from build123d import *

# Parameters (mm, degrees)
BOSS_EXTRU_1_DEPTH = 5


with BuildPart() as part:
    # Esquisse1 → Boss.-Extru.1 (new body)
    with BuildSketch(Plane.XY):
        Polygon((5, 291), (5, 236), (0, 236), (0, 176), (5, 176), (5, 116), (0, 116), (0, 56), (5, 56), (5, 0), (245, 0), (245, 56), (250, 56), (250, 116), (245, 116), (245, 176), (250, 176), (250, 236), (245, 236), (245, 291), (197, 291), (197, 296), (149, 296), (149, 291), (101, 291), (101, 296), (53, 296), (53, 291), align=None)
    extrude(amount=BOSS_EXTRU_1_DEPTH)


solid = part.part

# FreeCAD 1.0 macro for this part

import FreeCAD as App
import Part
import Sketcher
Q = App.Units.Quantity


def add_polygon(sketch, points):
    """Adds a closed chain of lines whose ends are joined by coincident constraints."""
    first, n = sketch.GeometryCount, len(points)
    for a, b in zip(points, points[1:] + points[:1]):
        sketch.addGeometry(Part.LineSegment(App.Vector(*a, 0), App.Vector(*b, 0)), False)
    for i in range(n):
        sketch.addConstraint(Sketcher.Constraint("Coincident", first + i, 2, first + (i + 1) % n, 1))

doc = App.newDocument("Part")
body = doc.addObject("PartDesign::Body", "Body")

# Sketch on XY plane
sketch1 = body.newObject("Sketcher::SketchObject", "Sketch")
sketch1.AttachmentSupport = (doc.getObject("XY_Plane"), [""])
sketch1.MapMode = "FlatFace"
add_polygon(sketch1, [(5, 291), (5, 236), (0, 236), (0, 176), (5, 176), (5, 116), (0, 116), (0, 56), (5, 56), (5, 0), (245, 0), (245, 56), (250, 56), (250, 116), (245, 116), (245, 176), (250, 176), (250, 236), (245, 236), (245, 291), (197, 291), (197, 296), (149, 296), (149, 291), (101, 291), (101, 296), (53, 296), (53, 291)])  # lines 0-27
sketch1.addConstraint([
    Sketcher.Constraint("Vertical", 0),
    Sketcher.Constraint("Horizontal", 1),
    Sketcher.Constraint("Vertical", 2),
    Sketcher.Constraint("Horizontal", 3),
    Sketcher.Constraint("Vertical", 4),
    Sketcher.Constraint("Horizontal", 5),
    Sketcher.Constraint("Vertical", 6),
    Sketcher.Constraint("Horizontal", 7),
    Sketcher.Constraint("Vertical", 8),
    Sketcher.Constraint("Horizontal", 9),
    Sketcher.Constraint("Vertical", 10),
    Sketcher.Constraint("Horizontal", 11),
    Sketcher.Constraint("Vertical", 12),
    Sketcher.Constraint("Horizontal", 13),
    Sketcher.Constraint("Vertical", 14),
    Sketcher.Constraint("Horizontal", 15),
    Sketcher.Constraint("Vertical", 16),
    Sketcher.Constraint("Horizontal", 17),
    Sketcher.Constraint("Vertical", 18),
    Sketcher.Constraint("Horizontal", 19),
    Sketcher.Constraint("Vertical", 20),
    Sketcher.Constraint("Horizontal", 21),
    Sketcher.Constraint("Vertical", 22),
    Sketcher.Constraint("Horizontal", 23),
    Sketcher.Constraint("Vertical", 24),
    Sketcher.Constraint("Horizontal", 25),
    Sketcher.Constraint("Vertical", 26),
    Sketcher.Constraint("Horizontal", 27),
    Sketcher.Constraint("PointOnObject", 1, 2, -2),
    Sketcher.Constraint("PointOnObject", 5, 2, -2),
    Sketcher.Constraint("PointOnObject", 8, 2, -1),
    Sketcher.Constraint("Horizontal", 7, 2, 10, 2),
    Sketcher.Constraint("Horizontal", 5, 2, 12, 2),
    Sketcher.Constraint("Horizontal", 3, 2, 14, 2),
    Sketcher.Constraint("Horizontal", 1, 2, 16, 2),
    Sketcher.Constraint("Horizontal", 19, 2, 22, 2),
    Sketcher.Constraint("Horizontal", 21, 2, 24, 2),
    Sketcher.Constraint("Horizontal", 23, 2, 26, 2),
    Sketcher.Constraint("Vertical", 0, 2, 3, 2),
    Sketcher.Constraint("Vertical", 4, 2, 7, 2),
    Sketcher.Constraint("Vertical", 10, 2, 13, 2),
    Sketcher.Constraint("Vertical", 12, 2, 15, 2),
    Sketcher.Constraint("Vertical", 14, 2, 17, 2),
    Sketcher.Constraint("Equal", 7, 11),
    Sketcher.Constraint("Equal", 19, 21),
    Sketcher.Constraint("Equal", 21, 23),
    Sketcher.Constraint("Equal", 23, 25),
    Sketcher.Constraint("Equal", 25, 27),
    Sketcher.Constraint("Equal", 2, 4),
    Sketcher.Constraint("Equal", 4, 6),
    Sketcher.Constraint("Equal", 17, 20),
    Sketcher.Constraint("DistanceX", 1, 2, 1, 1, Q("5 mm")),
    Sketcher.Constraint("DistanceX", 9, 1, 9, 2, Q("240 mm")),
    Sketcher.Constraint("DistanceY", 0, 2, 0, 1, Q("55 mm")),
    Sketcher.Constraint("DistanceY", 2, 2, 2, 1, Q("60 mm")),
    Sketcher.Constraint("DistanceY", 8, 2, 8, 1, Q("56 mm")),
])
pad1 = body.newObject("PartDesign::Pad", "Pad")
pad1.Profile = sketch1
pad1.Length = 5

doc.recompute()
